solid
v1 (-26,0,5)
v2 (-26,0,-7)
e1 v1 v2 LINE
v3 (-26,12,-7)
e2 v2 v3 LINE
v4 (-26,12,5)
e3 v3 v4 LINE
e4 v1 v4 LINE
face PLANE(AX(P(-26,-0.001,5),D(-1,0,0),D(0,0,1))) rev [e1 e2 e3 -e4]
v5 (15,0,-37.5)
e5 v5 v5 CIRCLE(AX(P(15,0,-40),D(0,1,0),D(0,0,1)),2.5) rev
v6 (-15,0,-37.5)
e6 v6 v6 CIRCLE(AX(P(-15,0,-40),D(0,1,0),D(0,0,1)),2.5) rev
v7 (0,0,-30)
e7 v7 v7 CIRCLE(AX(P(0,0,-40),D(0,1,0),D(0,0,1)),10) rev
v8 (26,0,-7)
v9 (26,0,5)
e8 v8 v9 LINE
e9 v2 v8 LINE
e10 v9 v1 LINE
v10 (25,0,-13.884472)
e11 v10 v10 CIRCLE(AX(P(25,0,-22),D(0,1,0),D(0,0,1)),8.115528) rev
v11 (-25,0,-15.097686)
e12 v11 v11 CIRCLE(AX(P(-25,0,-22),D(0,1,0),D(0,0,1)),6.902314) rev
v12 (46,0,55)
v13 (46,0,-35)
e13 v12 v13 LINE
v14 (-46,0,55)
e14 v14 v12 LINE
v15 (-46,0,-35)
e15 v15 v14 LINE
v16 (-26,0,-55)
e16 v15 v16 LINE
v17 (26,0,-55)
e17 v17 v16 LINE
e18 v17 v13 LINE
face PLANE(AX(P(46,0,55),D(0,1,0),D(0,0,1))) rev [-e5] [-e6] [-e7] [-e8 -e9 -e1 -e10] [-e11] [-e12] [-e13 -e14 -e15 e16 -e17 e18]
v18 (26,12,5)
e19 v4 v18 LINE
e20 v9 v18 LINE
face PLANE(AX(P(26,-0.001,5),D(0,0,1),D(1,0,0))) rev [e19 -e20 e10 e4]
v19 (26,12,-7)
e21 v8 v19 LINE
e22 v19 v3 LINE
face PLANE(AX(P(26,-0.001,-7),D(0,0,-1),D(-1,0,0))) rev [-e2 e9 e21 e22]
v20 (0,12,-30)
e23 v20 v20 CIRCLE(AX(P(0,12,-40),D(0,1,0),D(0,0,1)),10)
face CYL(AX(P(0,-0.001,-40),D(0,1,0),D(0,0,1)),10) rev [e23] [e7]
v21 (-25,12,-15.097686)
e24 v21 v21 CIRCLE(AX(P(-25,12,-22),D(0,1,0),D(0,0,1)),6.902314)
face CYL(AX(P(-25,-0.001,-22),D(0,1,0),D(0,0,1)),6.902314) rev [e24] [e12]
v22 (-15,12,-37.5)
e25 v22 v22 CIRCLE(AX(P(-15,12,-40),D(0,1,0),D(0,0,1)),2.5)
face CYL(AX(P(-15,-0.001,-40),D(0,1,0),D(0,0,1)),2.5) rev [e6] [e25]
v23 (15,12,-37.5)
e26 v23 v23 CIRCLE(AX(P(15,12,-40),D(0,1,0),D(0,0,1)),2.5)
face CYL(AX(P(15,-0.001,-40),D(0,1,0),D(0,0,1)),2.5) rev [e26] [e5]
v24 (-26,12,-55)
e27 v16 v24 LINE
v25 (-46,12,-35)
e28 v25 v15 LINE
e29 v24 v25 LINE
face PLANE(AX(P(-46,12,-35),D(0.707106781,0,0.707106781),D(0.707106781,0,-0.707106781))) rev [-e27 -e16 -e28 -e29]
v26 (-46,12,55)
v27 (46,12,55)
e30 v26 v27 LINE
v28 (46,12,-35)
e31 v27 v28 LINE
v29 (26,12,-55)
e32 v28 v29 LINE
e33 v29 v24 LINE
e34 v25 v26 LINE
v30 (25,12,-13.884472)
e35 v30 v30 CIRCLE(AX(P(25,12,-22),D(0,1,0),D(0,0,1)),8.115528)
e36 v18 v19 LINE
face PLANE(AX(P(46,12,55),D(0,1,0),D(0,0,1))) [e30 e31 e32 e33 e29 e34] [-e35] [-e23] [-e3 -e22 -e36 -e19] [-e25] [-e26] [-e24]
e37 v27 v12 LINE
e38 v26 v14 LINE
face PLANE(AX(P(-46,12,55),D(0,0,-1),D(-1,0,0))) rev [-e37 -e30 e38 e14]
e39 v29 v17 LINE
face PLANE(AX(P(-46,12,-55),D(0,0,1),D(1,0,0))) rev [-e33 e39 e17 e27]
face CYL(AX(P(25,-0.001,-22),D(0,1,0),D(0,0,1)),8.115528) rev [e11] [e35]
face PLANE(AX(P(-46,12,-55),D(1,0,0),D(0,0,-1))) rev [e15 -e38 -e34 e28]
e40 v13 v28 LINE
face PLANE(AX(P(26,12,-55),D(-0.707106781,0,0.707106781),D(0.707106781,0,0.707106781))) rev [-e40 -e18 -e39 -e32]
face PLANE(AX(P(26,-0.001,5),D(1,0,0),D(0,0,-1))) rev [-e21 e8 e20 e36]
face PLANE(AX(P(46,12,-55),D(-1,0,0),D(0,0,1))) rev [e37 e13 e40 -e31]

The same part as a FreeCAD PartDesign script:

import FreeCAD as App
import Part
import Sketcher

V = App.Vector


def edges_at(feature, points):
    """Names of the edges that pass closest to the given points."""
    edges = feature.Shape.Edges
    near = lambda p: min(range(len(edges)), key=lambda i: edges[i].distToShape(Part.Vertex(*p))[0])
    return sorted({f"Edge{near(p) + 1}" for p in points})


def add_polygon(sketch, points):
    """Adds a closed chain of lines whose ends are joined by coincident constraints."""
    first, n = sketch.GeometryCount, len(points)
    for a, b in zip(points, points[1:] + points[:1]):
        sketch.addGeometry(Part.LineSegment(App.Vector(*a, 0), App.Vector(*b, 0)), False)
    for i in range(n):
        sketch.addConstraint(Sketcher.Constraint("Coincident", first + i, 2, first + (i + 1) % n, 1))

doc = App.newDocument("Part")
body = doc.addObject("PartDesign::Body", "Body")

# Sketch on XZ plane
sketch1 = body.newObject("Sketcher::SketchObject", "Sketch")
sketch1.AttachmentSupport = (doc.getObject("XZ_Plane"), [""])
sketch1.MapMode = "FlatFace"
add_polygon(sketch1, [(-46, -55), (-46, 55), (46, 55), (46, -55)])  # lines 0-3
sketch1.addConstraint([
    Sketcher.Constraint("Vertical", 0),
    Sketcher.Constraint("Horizontal", 1),
    Sketcher.Constraint("Vertical", 2),
    Sketcher.Constraint("Horizontal", 3),
    Sketcher.Constraint("Symmetric", 0, 2, 2, 2, -1, 1),
    Sketcher.Constraint("DistanceX", 1, 1, 1, 2, 92.0),
    Sketcher.Constraint("DistanceY", 0, 1, 0, 2, 110.0),
])
pad1 = body.newObject("PartDesign::Pad", "Pad")
pad1.Profile = sketch1
pad1.Length = 12
pad1.Reversed = True

# Sketch on XZ plane
sketch2 = body.newObject("Sketcher::SketchObject", "Sketch001")
sketch2.AttachmentSupport = (doc.getObject("XZ_Plane"), [""])
sketch2.MapMode = "FlatFace"
sketch2.AttachmentOffset = App.Placement(V(0, 0, -12), App.Rotation())
sketch2.addGeometry(Part.Circle(V(0, -40, 0), V(0, 0, 1), 10), False)
sketch2.addConstraint([
    Sketcher.Constraint("PointOnObject", 0, 3, -2),
    Sketcher.Constraint("Diameter", 0, 20.0),
    Sketcher.Constraint("DistanceY", 0, 3, -1, 1, 40.0),
])
pocket1 = body.newObject("PartDesign::Pocket", "Pocket")
pocket1.Profile = sketch2
pocket1.Type = "UpToFirst"
pocket1.Reversed = True

# Sketch on XZ plane
sketch3 = body.newObject("Sketcher::SketchObject", "Sketch002")
sketch3.AttachmentSupport = (doc.getObject("XZ_Plane"), [""])
sketch3.MapMode = "FlatFace"
sketch3.AttachmentOffset = App.Placement(V(0, 0, -12), App.Rotation())
sketch3.addGeometry(Part.Circle(V(-25, -22, 0), V(0, 0, 1), 7), False)
sketch3.addConstraint([
    Sketcher.Constraint("DistanceX", 0, 3, -1, 1, 25.0),
    Sketcher.Constraint("DistanceY", 0, 3, -1, 1, 22.0),
    Sketcher.Constraint("Diameter", 0, 13.804629),
])
pocket2 = body.newObject("PartDesign::Pocket", "Pocket001")
pocket2.Profile = sketch3
pocket2.Type = "UpToFirst"
pocket2.Reversed = True

# Sketch on XZ plane
sketch4 = body.newObject("Sketcher::SketchObject", "Sketch003")
sketch4.AttachmentSupport = (doc.getObject("XZ_Plane"), [""])
sketch4.MapMode = "FlatFace"
sketch4.AttachmentOffset = App.Placement(V(0, 0, -12), App.Rotation())
sketch4.addGeometry(Part.Circle(V(25, -22, 0), V(0, 0, 1), 8), False)
sketch4.addConstraint([
    Sketcher.Constraint("DistanceX", -1, 1, 0, 3, 25.0),
    Sketcher.Constraint("DistanceY", 0, 3, -1, 1, 22.0),
    Sketcher.Constraint("Diameter", 0, 16.231055),
])
pocket3 = body.newObject("PartDesign::Pocket", "Pocket002")
pocket3.Profile = sketch4
pocket3.Type = "UpToFirst"
pocket3.Reversed = True

# Sketch on XZ plane
sketch5 = body.newObject("Sketcher::SketchObject", "Sketch004")
sketch5.AttachmentSupport = (doc.getObject("XZ_Plane"), [""])
sketch5.MapMode = "FlatFace"
sketch5.AttachmentOffset = App.Placement(V(0, 0, -12), App.Rotation())
sketch5.addGeometry(Part.Circle(V(-15, -40, 0), V(0, 0, 1), 2.5), False)
sketch5.addConstraint([
    Sketcher.Constraint("Diameter", 0, 5.0),
    Sketcher.Constraint("DistanceX", 0, 3, -1, 1, 15.0),
    Sketcher.Constraint("DistanceY", 0, 3, -1, 1, 40.0),
])
pocket4 = body.newObject("PartDesign::Pocket", "Pocket003")
pocket4.Profile = sketch5
pocket4.Type = "UpToFirst"
pocket4.Reversed = True

# Sketch on XZ plane
sketch6 = body.newObject("Sketcher::SketchObject", "Sketch005")
sketch6.AttachmentSupport = (doc.getObject("XZ_Plane"), [""])
sketch6.MapMode = "FlatFace"
sketch6.AttachmentOffset = App.Placement(V(0, 0, -12), App.Rotation())
sketch6.addGeometry(Part.Circle(V(15, -40, 0), V(0, 0, 1), 2.5), False)
sketch6.addConstraint([
    Sketcher.Constraint("Diameter", 0, 5.0),
    Sketcher.Constraint("DistanceX", -1, 1, 0, 3, 15.0),
    Sketcher.Constraint("DistanceY", 0, 3, -1, 1, 40.0),
])
pocket5 = body.newObject("PartDesign::Pocket", "Pocket004")
pocket5.Profile = sketch6
pocket5.Type = "UpToFirst"
pocket5.Reversed = True

# Sketch on XZ plane
sketch7 = body.newObject("Sketcher::SketchObject", "Sketch006")
sketch7.AttachmentSupport = (doc.getObject("XZ_Plane"), [""])
sketch7.MapMode = "FlatFace"
sketch7.AttachmentOffset = App.Placement(V(0, 0, -12), App.Rotation())
add_polygon(sketch7, [(-26, -7), (-26, 5), (26, 5), (26, -7)])  # lines 0-3
sketch7.addConstraint([
    Sketcher.Constraint("Vertical", 0),
    Sketcher.Constraint("Horizontal", 1),
    Sketcher.Constraint("Vertical", 2),
    Sketcher.Constraint("Horizontal", 3),
    Sketcher.Constraint("DistanceX", 1, 1, 1, 2, 52.0),
    Sketcher.Constraint("DistanceY", 0, 1, 0, 2, 12.0),
    Sketcher.Constraint("DistanceX", 0, 2, -1, 1, 26.0),
    Sketcher.Constraint("DistanceY", -1, 1, 0, 2, 5.0),
])
pocket6 = body.newObject("PartDesign::Pocket", "Pocket005")
pocket6.Profile = sketch7
pocket6.Type = "UpToFirst"
pocket6.Reversed = True
doc.recompute()

chamfer = body.newObject("PartDesign::Chamfer", "Chamfer")
chamfer.Base = (pocket6, edges_at(pocket6, [(-46, 6, -55), (46, 6, -55)]))
chamfer.Size = 20

doc.recompute()
